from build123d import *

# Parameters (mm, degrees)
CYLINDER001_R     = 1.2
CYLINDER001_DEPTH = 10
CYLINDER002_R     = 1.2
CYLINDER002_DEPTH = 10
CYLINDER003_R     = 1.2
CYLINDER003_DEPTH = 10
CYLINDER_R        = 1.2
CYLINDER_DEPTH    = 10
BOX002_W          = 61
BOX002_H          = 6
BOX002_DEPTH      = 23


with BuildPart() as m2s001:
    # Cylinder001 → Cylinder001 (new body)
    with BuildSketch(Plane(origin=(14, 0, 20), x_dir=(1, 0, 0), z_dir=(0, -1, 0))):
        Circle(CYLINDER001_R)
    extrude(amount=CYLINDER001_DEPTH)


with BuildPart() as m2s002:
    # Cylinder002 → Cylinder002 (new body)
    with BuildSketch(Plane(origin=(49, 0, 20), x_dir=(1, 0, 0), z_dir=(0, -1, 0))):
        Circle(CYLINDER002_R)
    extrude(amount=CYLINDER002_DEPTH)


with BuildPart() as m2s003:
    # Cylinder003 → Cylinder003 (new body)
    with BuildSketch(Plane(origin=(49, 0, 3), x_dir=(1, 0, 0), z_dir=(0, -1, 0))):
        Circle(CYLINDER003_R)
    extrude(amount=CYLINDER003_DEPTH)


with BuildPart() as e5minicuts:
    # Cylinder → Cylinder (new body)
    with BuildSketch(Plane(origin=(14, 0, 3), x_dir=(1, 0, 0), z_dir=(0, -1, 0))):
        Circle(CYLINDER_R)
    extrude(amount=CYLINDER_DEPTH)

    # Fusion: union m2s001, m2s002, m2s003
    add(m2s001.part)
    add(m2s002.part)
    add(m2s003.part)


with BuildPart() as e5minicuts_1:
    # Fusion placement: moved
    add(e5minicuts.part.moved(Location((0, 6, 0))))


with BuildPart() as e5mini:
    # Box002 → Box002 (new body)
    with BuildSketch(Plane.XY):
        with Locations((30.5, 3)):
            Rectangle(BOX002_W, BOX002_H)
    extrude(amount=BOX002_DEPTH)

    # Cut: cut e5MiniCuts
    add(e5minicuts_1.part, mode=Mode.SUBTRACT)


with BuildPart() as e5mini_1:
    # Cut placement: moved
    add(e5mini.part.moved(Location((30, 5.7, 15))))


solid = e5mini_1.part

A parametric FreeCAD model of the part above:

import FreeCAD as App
import Part
import Sketcher
Q = App.Units.Quantity


def add_polygon(sketch, points):
    """Adds a closed chain of lines whose ends are joined by coincident constraints."""
    first, n = sketch.GeometryCount, len(points)
    for a, b in zip(points, points[1:] + points[:1]):
        sketch.addGeometry(Part.LineSegment(App.Vector(*a, 0), App.Vector(*b, 0)), False)
    for i in range(n):
        sketch.addConstraint(Sketcher.Constraint("Coincident", first + i, 2, first + (i + 1) % n, 1))

doc = App.newDocument("Part")
body = doc.addObject("PartDesign::Body", "Body")

sketch1 = body.newObject("Sketcher::SketchObject", "Sketch")
sketch1.AttachmentSupport = (doc.getObject("XZ_Plane"), [""])
sketch1.MapMode = "FlatFace"
sketch1.addGeometry(Part.Circle(App.Vector(14, 20, 0), App.Vector(0, 0, 1), 1.2), False)
sketch1.addConstraint(Sketcher.Constraint("Diameter", 0, Q("2.4 mm")))
sketch1.addConstraint(Sketcher.Constraint("DistanceX", -1, 1, 0, 3, Q("14 mm")))
sketch1.addConstraint(Sketcher.Constraint("DistanceY", -1, 1, 0, 3, Q("20 mm")))
pad1 = body.newObject("PartDesign::Pad", "Pad")
pad1.Profile = sketch1
pad1.Length = 10
body2 = doc.addObject("PartDesign::Body", "Body001")

sketch2 = body2.newObject("Sketcher::SketchObject", "Sketch001")
sketch2.AttachmentSupport = (doc.getObject("XZ_Plane001"), [""])
sketch2.MapMode = "FlatFace"
sketch2.addGeometry(Part.Circle(App.Vector(49, 20, 0), App.Vector(0, 0, 1), 1.2), False)
sketch2.addConstraint(Sketcher.Constraint("Diameter", 0, Q("2.4 mm")))
sketch2.addConstraint(Sketcher.Constraint("DistanceX", -1, 1, 0, 3, Q("49 mm")))
sketch2.addConstraint(Sketcher.Constraint("DistanceY", -1, 1, 0, 3, Q("20 mm")))
pad2 = body2.newObject("PartDesign::Pad", "Pad001")
pad2.Profile = sketch2
pad2.Length = 10
body3 = doc.addObject("PartDesign::Body", "Body002")

sketch3 = body3.newObject("Sketcher::SketchObject", "Sketch002")
sketch3.AttachmentSupport = (doc.getObject("XZ_Plane002"), [""])
sketch3.MapMode = "FlatFace"
sketch3.addGeometry(Part.Circle(App.Vector(49, 3, 0), App.Vector(0, 0, 1), 1.2), False)
sketch3.addConstraint(Sketcher.Constraint("Diameter", 0, Q("2.4 mm")))
sketch3.addConstraint(Sketcher.Constraint("DistanceX", -1, 1, 0, 3, Q("49 mm")))
sketch3.addConstraint(Sketcher.Constraint("DistanceY", -1, 1, 0, 3, Q("3 mm")))
pad3 = body3.newObject("PartDesign::Pad", "Pad002")
pad3.Profile = sketch3
pad3.Length = 10
body4 = doc.addObject("PartDesign::Body", "Body003")
body4.AllowCompound = True

sketch4 = body4.newObject("Sketcher::SketchObject", "Sketch003")
sketch4.AttachmentSupport = (doc.getObject("XZ_Plane003"), [""])
sketch4.MapMode = "FlatFace"
sketch4.addGeometry(Part.Circle(App.Vector(14, 3, 0), App.Vector(0, 0, 1), 1.2), False)
sketch4.addConstraint(Sketcher.Constraint("Diameter", 0, Q("2.4 mm")))
sketch4.addConstraint(Sketcher.Constraint("DistanceX", -1, 1, 0, 3, Q("14 mm")))
sketch4.addConstraint(Sketcher.Constraint("DistanceY", -1, 1, 0, 3, Q("3 mm")))
pad4 = body4.newObject("PartDesign::Pad", "Pad003")
pad4.Profile = sketch4
pad4.Length = 10
doc.recompute()

boolean = body4.newObject("PartDesign::Boolean", "Boolean")
boolean.Type = "Fuse"
boolean.addObjects([body])
doc.recompute()

boolean2 = body4.newObject("PartDesign::Boolean", "Boolean001")
boolean2.Type = "Fuse"
boolean2.addObjects([body2])
doc.recompute()

boolean3 = body4.newObject("PartDesign::Boolean", "Boolean002")
boolean3.Type = "Fuse"
boolean3.addObjects([body3])
body5 = doc.addObject("PartDesign::Body", "Body004")
body5.AllowCompound = True
doc.recompute()

body4.Placement = App.Placement(App.Vector(0, 6, 0), App.Rotation(App.Vector(0, 0, 1), 0))
boolean4 = body5.newObject("PartDesign::Boolean", "Boolean003")
boolean4.Type = "Fuse"
boolean4.addObjects([body4])
body6 = doc.addObject("PartDesign::Body", "Body005")

sketch5 = body6.newObject("Sketcher::SketchObject", "Sketch004")
sketch5.AttachmentSupport = (doc.getObject("XY_Plane005"), [""])
sketch5.MapMode = "FlatFace"
add_polygon(sketch5, [(0, 6), (0, 0), (61, 0), (61, 6)])
sketch5.addConstraint(Sketcher.Constraint("Vertical", 0))
sketch5.addConstraint(Sketcher.Constraint("Horizontal", 1))
sketch5.addConstraint(Sketcher.Constraint("Vertical", 2))
sketch5.addConstraint(Sketcher.Constraint("Horizontal", 3))
sketch5.addConstraint(Sketcher.Constraint("Coincident", 0, 2, -1, 1))
sketch5.addConstraint(Sketcher.Constraint("DistanceX", 1, 1, 1, 2, Q("61 mm")))
sketch5.addConstraint(Sketcher.Constraint("DistanceY", 0, 2, 0, 1, Q("6 mm")))
pad5 = body6.newObject("PartDesign::Pad", "Pad004")
pad5.Profile = sketch5
pad5.Length = 23
doc.recompute()

boolean5 = body6.newObject("PartDesign::Boolean", "Boolean004")
boolean5.Type = "Cut"
boolean5.addObjects([body5])
body7 = doc.addObject("PartDesign::Body", "Body006")
doc.recompute()

body6.Placement = App.Placement(App.Vector(30, 5.7, 15), App.Rotation(App.Vector(0, 0, 1), 0))
boolean6 = body7.newObject("PartDesign::Boolean", "Boolean005")
boolean6.Type = "Fuse"
boolean6.addObjects([body6])

doc.recompute()
